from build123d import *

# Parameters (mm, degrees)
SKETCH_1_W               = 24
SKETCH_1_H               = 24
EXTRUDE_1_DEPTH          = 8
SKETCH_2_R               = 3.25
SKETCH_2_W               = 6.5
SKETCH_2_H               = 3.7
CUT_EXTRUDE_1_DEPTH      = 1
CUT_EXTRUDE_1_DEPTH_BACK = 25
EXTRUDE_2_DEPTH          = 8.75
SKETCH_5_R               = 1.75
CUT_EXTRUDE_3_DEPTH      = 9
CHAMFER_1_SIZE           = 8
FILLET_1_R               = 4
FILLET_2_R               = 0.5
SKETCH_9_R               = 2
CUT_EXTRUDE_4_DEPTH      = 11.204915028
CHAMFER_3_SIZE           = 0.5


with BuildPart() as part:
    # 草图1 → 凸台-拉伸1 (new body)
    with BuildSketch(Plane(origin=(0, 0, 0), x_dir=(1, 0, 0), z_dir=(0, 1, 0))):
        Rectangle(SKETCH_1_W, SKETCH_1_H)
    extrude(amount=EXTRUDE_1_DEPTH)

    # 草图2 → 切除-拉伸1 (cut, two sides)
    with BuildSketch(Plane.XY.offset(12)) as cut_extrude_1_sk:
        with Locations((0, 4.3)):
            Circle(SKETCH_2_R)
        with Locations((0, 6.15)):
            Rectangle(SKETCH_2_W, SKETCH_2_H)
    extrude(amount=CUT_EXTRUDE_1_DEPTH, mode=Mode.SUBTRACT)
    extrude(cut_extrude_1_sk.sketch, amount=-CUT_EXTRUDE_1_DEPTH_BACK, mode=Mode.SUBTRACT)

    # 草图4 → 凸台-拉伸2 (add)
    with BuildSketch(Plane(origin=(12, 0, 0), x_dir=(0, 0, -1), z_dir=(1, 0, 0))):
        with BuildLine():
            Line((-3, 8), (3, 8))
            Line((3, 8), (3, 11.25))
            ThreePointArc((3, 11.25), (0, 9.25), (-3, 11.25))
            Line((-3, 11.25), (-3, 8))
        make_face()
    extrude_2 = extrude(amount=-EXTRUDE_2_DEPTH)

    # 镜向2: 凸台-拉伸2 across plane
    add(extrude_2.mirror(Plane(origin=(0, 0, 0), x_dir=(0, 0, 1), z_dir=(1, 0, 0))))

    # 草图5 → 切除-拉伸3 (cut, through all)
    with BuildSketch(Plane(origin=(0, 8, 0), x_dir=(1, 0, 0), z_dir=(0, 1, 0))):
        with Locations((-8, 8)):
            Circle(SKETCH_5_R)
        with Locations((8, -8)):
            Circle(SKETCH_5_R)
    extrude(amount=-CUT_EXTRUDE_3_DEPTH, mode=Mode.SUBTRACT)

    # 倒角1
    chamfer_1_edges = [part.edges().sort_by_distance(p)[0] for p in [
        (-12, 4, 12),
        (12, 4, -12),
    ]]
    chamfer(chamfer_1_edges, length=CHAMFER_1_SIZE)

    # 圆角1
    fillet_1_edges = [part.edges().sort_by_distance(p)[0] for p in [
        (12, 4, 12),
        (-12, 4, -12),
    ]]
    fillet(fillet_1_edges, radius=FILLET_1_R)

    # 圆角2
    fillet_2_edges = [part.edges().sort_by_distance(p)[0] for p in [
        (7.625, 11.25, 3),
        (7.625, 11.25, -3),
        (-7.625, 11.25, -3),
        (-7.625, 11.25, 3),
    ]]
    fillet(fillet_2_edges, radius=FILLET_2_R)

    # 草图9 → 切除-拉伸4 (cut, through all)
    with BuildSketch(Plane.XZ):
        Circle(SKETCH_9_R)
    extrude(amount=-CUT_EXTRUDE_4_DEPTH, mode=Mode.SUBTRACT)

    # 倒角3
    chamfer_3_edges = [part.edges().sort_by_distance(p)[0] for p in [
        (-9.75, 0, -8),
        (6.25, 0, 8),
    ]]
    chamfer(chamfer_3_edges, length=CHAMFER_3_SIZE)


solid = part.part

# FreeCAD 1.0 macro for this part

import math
import FreeCAD as App
import Part
import Sketcher


def edges_at(feature, points):
    """Names of the edges that pass closest to the given points."""
    edges = feature.Shape.Edges
    near = lambda p: min(range(len(edges)), key=lambda i: edges[i].distToShape(Part.Vertex(*p))[0])
    return sorted({f"Edge{near(p) + 1}" for p in points})


def add_polygon(sketch, points):
    """Adds a closed chain of lines whose ends are joined by coincident constraints."""
    first, n = sketch.GeometryCount, len(points)
    for a, b in zip(points, points[1:] + points[:1]):
        sketch.addGeometry(Part.LineSegment(App.Vector(*a, 0), App.Vector(*b, 0)), False)
    for i in range(n):
        sketch.addConstraint(Sketcher.Constraint("Coincident", first + i, 2, first + (i + 1) % n, 1))

doc = App.newDocument("Part")
body = doc.addObject("PartDesign::Body", "Body")

# Sketch on XZ plane
sketch1 = body.newObject("Sketcher::SketchObject", "Sketch")
sketch1.AttachmentSupport = (doc.getObject("XZ_Plane"), [""])
sketch1.MapMode = "FlatFace"
add_polygon(sketch1, [(-12, -12), (-12, 12), (12, 12), (12, -12)])  # lines 0-3
sketch1.addConstraint([
    Sketcher.Constraint("Vertical", 0),
    Sketcher.Constraint("Horizontal", 1),
    Sketcher.Constraint("Vertical", 2),
    Sketcher.Constraint("Horizontal", 3),
    Sketcher.Constraint("Symmetric", 0, 2, 2, 2, -1, 1),
    Sketcher.Constraint("Equal", 3, 0),
    Sketcher.Constraint("DistanceX", 1, 1, 1, 2, 24.0),
])
pad1 = body.newObject("PartDesign::Pad", "Pad")
pad1.Profile = sketch1
pad1.Length = 8
pad1.Reversed = True

# Sketch on XY plane
sketch2 = body.newObject("Sketcher::SketchObject", "Sketch001")
sketch2.AttachmentSupport = (doc.getObject("XY_Plane"), [""])
sketch2.MapMode = "FlatFace"
sketch2.AttachmentOffset = App.Placement(App.Vector(0, 0, 12), App.Rotation())
sketch2.addGeometry([
    Part.ArcOfCircle(Part.Circle(App.Vector(0, 4.3, 0), App.Vector(0, 0, 1), 3.2), math.radians(180), math.radians(360)),
    Part.LineSegment(App.Vector(3.2, 4.3, 0), App.Vector(3.2, 8, 0)),
    Part.LineSegment(App.Vector(3.2, 8, 0), App.Vector(-3.2, 8, 0)),
    Part.LineSegment(App.Vector(-3.2, 8, 0), App.Vector(-3.2, 4.3, 0)),
], False)
sketch2.addConstraint([
    Sketcher.Constraint("Tangent", 0, 2, 1, 1),
    Sketcher.Constraint("Coincident", 1, 2, 2, 1),
    Sketcher.Constraint("Coincident", 2, 2, 3, 1),
    Sketcher.Constraint("Tangent", 3, 2, 0, 1),
    Sketcher.Constraint("Vertical", 1),
    Sketcher.Constraint("Horizontal", 2),
    Sketcher.Constraint("Vertical", 3),
    Sketcher.Constraint("PointOnObject", 0, 3, -2),
    Sketcher.Constraint("Radius", 0, 3.25),
    Sketcher.Constraint("DistanceY", 1, 1, 1, 2, 3.7),
    Sketcher.Constraint("DistanceY", -1, 1, 1, 2, 8.0),
])
pocket1 = body.newObject("PartDesign::Pocket", "Pocket")
pocket1.Profile = sketch2
pocket1.Type = "ThroughAll"
pocket1.Midplane = True

# Sketch on YZ plane
sketch3 = body.newObject("Sketcher::SketchObject", "Sketch002")
sketch3.AttachmentSupport = (doc.getObject("YZ_Plane"), [""])
sketch3.MapMode = "FlatFace"
sketch3.AttachmentOffset = App.Placement(App.Vector(0, 0, 12), App.Rotation())
sketch3.addGeometry([
    Part.LineSegment(App.Vector(8, 3, 0), App.Vector(8, -3, 0)),
    Part.LineSegment(App.Vector(8, -3, 0), App.Vector(11.2, -3, 0)),
    Part.ArcOfCircle(Part.Circle(App.Vector(12.5, 0, 0), App.Vector(0, 0, 1), 3.2), math.radians(113), math.radians(247)),
    Part.LineSegment(App.Vector(11.2, 3, 0), App.Vector(8, 3, 0)),
], False)
sketch3.addConstraint([
    Sketcher.Constraint("Coincident", 0, 2, 1, 1),
    Sketcher.Constraint("Coincident", 1, 2, 2, 2),
    Sketcher.Constraint("Coincident", 2, 1, 3, 1),
    Sketcher.Constraint("Coincident", 3, 2, 0, 1),
    Sketcher.Constraint("Vertical", 0),
    Sketcher.Constraint("Horizontal", 1),
    Sketcher.Constraint("Horizontal", 3),
    Sketcher.Constraint("Symmetric", 1, 2, 2, 1, -1),
    Sketcher.Constraint("DistanceY", 0, 2, 0, 1, 6.0),
    Sketcher.Constraint("Radius", 2, 3.25),
    Sketcher.Constraint("DistanceX", -1, 1, 0, 2, 8.0),
    Sketcher.Constraint("DistanceX", 1, 1, 1, 2, 3.25),
])
pad2 = body.newObject("PartDesign::Pad", "Pad001")
pad2.Profile = sketch3
pad2.Length = 8.75
pad2.Reversed = True
doc.recompute()

mirrored = body.newObject("PartDesign::Mirrored", "Mirrored")
mirrored.Originals = [pad2]
mirrored.MirrorPlane = (doc.getObject("YZ_Plane"), [""])
body.Tip = mirrored

# Sketch on XZ plane
sketch4 = body.newObject("Sketcher::SketchObject", "Sketch003")
sketch4.AttachmentSupport = (doc.getObject("XZ_Plane"), [""])
sketch4.MapMode = "FlatFace"
sketch4.AttachmentOffset = App.Placement(App.Vector(0, 0, -8), App.Rotation())
sketch4.addGeometry([
    Part.Circle(App.Vector(-8, -8, 0), App.Vector(0, 0, 1), 1.8),
    Part.Circle(App.Vector(8, 8, 0), App.Vector(0, 0, 1), 1.8),
], False)
sketch4.addConstraint([
    Sketcher.Constraint("Equal", 0, 1),
    Sketcher.Constraint("Symmetric", 0, 3, 1, 3, -1, 1),
    Sketcher.Constraint("Diameter", 0, 3.5),
    Sketcher.Constraint("DistanceX", 0, 3, -1, 1, 8.0),
    Sketcher.Constraint("DistanceY", 0, 3, -1, 1, 8.0),
])
pocket2 = body.newObject("PartDesign::Pocket", "Pocket001")
pocket2.Profile = sketch4
pocket2.Type = "ThroughAll"
pocket2.Reversed = True
doc.recompute()

chamfer = body.newObject("PartDesign::Chamfer", "Chamfer")
chamfer.Base = (pocket2, edges_at(pocket2, [(-12, 4, 12), (12, 4, -12)]))
chamfer.Size = 8
doc.recompute()

fillet = body.newObject("PartDesign::Fillet", "Fillet")
fillet.Base = (chamfer, edges_at(chamfer, [(12, 4, 12), (-12, 4, -12)]))
fillet.Radius = 4
doc.recompute()

fillet2 = body.newObject("PartDesign::Fillet", "Fillet001")
fillet2.Base = (fillet, edges_at(fillet, [
    (7.625, 11.25, 3),
    (7.625, 11.25, -3),
    (-7.625, 11.25, -3),
    (-7.625, 11.25, 3),
]))
fillet2.Radius = 0.5

# Sketch on XZ plane
sketch5 = body.newObject("Sketcher::SketchObject", "Sketch004")
sketch5.AttachmentSupport = (doc.getObject("XZ_Plane"), [""])
sketch5.MapMode = "FlatFace"
sketch5.addGeometry(Part.Circle(App.Vector(0, 0, 0), App.Vector(0, 0, 1), 2), False)
sketch5.addConstraint([
    Sketcher.Constraint("Coincident", 0, 3, -1, 1),
    Sketcher.Constraint("Diameter", 0, 4.0),
])
pocket3 = body.newObject("PartDesign::Pocket", "Pocket002")
pocket3.Profile = sketch5
pocket3.Type = "ThroughAll"
doc.recompute()

chamfer2 = body.newObject("PartDesign::Chamfer", "Chamfer001")
chamfer2.Base = (pocket3, edges_at(pocket3, [(-9.75, 0, -8), (6.25, 0, 8)]))
chamfer2.Size = 0.5

doc.recompute()
